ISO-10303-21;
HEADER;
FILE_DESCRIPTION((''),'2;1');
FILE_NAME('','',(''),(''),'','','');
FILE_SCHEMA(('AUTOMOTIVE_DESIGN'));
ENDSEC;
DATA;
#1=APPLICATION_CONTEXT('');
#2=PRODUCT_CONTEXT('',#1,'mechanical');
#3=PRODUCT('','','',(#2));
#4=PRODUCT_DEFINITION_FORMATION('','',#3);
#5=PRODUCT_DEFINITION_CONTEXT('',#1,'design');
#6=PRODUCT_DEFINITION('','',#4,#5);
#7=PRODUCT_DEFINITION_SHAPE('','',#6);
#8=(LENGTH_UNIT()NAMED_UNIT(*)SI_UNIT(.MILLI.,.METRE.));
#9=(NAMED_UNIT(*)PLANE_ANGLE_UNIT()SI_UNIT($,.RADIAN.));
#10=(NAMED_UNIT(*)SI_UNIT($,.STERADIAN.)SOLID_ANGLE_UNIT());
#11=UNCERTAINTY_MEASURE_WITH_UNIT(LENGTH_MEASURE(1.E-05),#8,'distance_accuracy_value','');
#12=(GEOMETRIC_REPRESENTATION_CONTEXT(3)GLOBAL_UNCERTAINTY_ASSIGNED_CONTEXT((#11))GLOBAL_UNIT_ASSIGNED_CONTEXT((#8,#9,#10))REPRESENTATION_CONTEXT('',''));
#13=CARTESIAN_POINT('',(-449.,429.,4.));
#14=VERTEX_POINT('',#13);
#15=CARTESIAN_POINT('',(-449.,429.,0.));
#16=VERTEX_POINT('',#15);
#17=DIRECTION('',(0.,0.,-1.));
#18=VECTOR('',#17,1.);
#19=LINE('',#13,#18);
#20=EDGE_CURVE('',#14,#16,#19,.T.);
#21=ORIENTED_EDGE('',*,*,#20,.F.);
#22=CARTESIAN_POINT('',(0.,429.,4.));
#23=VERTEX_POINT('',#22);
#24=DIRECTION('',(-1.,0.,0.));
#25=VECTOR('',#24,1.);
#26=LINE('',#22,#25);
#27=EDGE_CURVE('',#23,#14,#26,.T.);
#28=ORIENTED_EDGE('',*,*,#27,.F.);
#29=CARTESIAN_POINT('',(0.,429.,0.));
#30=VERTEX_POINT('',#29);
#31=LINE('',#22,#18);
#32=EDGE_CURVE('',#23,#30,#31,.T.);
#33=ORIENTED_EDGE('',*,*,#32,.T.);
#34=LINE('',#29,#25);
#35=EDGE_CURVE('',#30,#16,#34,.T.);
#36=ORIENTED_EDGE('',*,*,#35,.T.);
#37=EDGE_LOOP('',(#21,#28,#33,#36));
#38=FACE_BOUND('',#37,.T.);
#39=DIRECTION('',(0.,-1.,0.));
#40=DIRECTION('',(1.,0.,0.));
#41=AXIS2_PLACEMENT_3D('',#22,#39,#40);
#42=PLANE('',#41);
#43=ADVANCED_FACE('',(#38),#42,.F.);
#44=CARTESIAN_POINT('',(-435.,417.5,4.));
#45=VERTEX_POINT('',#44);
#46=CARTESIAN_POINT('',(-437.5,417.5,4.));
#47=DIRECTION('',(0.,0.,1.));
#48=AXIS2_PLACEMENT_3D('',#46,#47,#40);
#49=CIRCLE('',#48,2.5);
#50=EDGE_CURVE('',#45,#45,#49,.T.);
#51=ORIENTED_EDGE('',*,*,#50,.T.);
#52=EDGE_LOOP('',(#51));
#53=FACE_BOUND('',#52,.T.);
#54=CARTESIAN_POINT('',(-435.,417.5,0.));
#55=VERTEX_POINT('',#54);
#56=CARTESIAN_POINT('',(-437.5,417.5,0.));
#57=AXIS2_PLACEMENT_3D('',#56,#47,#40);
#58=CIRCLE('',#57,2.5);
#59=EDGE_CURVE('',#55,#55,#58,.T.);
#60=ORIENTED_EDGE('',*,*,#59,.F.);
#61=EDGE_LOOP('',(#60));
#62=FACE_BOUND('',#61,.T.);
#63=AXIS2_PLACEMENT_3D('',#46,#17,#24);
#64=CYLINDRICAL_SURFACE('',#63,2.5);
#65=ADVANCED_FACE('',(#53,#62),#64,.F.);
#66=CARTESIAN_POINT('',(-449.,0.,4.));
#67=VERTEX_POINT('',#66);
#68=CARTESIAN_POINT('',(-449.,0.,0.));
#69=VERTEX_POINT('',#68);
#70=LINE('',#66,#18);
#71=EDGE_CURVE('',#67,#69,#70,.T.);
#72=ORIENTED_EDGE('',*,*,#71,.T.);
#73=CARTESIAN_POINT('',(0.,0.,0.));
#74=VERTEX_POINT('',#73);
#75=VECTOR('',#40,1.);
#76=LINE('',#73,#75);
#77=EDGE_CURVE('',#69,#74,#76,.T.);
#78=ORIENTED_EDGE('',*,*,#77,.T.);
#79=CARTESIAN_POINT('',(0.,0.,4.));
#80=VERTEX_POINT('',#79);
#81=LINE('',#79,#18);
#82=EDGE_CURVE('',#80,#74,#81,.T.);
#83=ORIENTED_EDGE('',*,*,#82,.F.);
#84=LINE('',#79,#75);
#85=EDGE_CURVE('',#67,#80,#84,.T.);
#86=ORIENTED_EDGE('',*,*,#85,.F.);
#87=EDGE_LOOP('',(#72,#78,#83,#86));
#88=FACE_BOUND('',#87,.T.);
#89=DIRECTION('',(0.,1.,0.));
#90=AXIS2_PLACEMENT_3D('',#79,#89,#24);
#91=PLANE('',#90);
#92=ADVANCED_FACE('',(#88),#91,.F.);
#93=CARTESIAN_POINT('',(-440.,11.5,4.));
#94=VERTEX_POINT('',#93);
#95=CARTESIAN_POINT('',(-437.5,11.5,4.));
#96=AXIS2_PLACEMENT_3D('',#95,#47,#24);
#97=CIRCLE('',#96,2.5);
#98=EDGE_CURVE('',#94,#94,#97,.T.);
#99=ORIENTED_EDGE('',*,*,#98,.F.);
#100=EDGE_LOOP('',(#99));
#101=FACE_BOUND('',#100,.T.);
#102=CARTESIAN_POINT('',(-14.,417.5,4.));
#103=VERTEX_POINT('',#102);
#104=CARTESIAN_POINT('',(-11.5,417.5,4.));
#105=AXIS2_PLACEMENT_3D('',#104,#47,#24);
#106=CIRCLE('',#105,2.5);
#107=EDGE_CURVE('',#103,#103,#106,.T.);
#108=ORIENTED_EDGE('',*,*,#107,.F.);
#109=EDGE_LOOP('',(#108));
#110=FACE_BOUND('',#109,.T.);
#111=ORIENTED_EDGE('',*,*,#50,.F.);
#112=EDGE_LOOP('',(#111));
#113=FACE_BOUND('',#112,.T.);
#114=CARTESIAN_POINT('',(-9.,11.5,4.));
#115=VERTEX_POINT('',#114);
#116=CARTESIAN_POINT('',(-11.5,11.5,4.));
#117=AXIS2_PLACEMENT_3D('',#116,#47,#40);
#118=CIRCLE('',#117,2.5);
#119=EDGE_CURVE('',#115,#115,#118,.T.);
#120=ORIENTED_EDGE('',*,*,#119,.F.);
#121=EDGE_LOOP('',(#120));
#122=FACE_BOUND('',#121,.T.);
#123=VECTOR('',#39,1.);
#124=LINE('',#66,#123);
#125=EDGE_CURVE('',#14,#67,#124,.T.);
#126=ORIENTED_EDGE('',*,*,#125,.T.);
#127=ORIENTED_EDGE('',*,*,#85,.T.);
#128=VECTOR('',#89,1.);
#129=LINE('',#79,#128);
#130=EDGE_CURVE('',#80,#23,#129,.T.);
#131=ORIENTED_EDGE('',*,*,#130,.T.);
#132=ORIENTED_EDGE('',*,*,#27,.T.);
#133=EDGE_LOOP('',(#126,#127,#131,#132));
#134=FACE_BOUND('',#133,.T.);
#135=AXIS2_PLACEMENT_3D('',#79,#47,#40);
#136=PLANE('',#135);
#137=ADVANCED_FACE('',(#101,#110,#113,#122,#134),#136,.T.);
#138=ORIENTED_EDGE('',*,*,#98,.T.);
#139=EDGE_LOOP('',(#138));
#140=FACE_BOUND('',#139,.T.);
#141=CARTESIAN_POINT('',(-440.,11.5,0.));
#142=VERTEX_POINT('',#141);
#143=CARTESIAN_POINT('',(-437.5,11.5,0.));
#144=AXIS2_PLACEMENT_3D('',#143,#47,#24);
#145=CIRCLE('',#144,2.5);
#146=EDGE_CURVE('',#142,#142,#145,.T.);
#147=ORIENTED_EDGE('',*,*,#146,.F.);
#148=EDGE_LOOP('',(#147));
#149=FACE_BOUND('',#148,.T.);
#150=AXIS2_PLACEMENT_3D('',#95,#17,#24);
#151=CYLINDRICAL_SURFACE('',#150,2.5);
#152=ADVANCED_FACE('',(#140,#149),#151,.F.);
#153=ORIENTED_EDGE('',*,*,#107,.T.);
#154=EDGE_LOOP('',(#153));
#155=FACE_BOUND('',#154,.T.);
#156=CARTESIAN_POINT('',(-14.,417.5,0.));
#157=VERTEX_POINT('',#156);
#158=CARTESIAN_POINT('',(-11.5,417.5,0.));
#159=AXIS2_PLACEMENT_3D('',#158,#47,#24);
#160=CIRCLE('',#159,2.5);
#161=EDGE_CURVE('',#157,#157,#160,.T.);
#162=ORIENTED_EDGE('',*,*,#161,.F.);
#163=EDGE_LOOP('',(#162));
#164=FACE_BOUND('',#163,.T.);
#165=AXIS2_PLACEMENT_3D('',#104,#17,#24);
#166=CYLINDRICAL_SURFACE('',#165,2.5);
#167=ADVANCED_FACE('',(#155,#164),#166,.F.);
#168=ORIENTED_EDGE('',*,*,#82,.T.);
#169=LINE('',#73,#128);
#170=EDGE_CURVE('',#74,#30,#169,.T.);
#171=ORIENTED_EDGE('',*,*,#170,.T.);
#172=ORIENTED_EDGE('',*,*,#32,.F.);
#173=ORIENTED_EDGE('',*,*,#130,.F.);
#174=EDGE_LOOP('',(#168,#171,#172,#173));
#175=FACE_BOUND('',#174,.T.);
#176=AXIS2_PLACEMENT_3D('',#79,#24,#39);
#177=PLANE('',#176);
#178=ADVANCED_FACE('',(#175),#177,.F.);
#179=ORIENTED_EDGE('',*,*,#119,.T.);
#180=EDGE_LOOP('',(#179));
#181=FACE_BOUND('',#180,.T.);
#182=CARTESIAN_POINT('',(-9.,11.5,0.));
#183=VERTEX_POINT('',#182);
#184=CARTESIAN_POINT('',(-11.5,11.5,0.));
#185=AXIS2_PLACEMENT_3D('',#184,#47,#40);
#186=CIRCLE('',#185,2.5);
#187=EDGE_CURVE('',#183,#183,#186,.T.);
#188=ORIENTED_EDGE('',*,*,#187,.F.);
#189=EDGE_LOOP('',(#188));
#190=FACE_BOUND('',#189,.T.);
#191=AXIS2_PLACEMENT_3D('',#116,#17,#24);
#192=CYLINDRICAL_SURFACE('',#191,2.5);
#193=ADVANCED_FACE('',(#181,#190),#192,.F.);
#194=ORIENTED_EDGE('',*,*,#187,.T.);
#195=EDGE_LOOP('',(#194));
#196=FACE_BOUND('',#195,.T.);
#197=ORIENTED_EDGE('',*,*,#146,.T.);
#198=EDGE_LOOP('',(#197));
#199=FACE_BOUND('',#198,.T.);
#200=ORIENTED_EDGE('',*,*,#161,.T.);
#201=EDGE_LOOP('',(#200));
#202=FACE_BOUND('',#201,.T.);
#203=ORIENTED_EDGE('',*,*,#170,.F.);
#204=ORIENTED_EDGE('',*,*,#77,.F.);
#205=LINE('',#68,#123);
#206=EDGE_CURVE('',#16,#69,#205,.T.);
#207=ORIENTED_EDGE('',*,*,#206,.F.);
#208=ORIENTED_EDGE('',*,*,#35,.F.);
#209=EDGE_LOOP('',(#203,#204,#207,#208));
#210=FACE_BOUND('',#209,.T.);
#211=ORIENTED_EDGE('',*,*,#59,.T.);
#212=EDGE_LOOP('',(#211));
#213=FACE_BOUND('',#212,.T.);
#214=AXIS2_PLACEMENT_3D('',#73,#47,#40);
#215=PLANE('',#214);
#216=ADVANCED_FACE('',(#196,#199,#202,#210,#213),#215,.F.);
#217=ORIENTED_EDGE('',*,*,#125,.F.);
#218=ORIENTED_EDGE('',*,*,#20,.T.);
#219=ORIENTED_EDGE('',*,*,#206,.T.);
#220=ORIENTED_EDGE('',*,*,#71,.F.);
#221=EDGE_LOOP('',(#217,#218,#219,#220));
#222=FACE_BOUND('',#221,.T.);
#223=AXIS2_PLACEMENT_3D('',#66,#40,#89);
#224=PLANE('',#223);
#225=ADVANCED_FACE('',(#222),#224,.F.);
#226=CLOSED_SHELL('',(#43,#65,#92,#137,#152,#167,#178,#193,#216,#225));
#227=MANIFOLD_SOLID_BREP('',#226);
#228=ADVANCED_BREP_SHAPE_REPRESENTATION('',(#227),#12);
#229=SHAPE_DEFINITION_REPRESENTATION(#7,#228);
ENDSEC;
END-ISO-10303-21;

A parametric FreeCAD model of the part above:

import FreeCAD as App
import Part
import Sketcher
from FreeCAD import Vector


def add_polygon(sketch, points):
    """Adds a closed chain of lines whose ends are joined by coincident constraints."""
    first, n = sketch.GeometryCount, len(points)
    for a, b in zip(points, points[1:] + points[:1]):
        sketch.addGeometry(Part.LineSegment(App.Vector(*a, 0), App.Vector(*b, 0)), False)
    for i in range(n):
        sketch.addConstraint(Sketcher.Constraint("Coincident", first + i, 2, first + (i + 1) % n, 1))

doc = App.newDocument("Part")
body = doc.addObject("PartDesign::Body", "Body")

# Sketch on XY plane
sketch1 = body.newObject("Sketcher::SketchObject", "Sketch")
sketch1.AttachmentSupport = (doc.getObject("XY_Plane"), [""])
sketch1.MapMode = "FlatFace"
add_polygon(sketch1, [(-449, 429), (-449, 0), (0, 0), (0, 429)])  # lines 0-3
sketch1.addGeometry(Part.Circle(Vector(-437.5, 11.5, 0), Vector(0, 0, 1), 2.5), False)  # 4
sketch1.addGeometry(Part.Circle(Vector(-11.5, 11.5, 0), Vector(0, 0, 1), 2.5), False)  # 5
sketch1.addGeometry(Part.Circle(Vector(-437.5, 417.5, 0), Vector(0, 0, 1), 2.5), False)  # 6
sketch1.addGeometry(Part.Circle(Vector(-11.5, 417.5, 0), Vector(0, 0, 1), 2.5), False)  # 7
sketch1.addConstraint([
    Sketcher.Constraint("Vertical", 0),
    Sketcher.Constraint("Horizontal", 1),
    Sketcher.Constraint("Vertical", 2),
    Sketcher.Constraint("Horizontal", 3),
    Sketcher.Constraint("Coincident", 1, 2, -1, 1),
    Sketcher.Constraint("Equal", 4, 5),
    Sketcher.Constraint("Equal", 5, 6),
    Sketcher.Constraint("Equal", 6, 7),
    Sketcher.Constraint("Horizontal", 4, 3, 5, 3),
    Sketcher.Constraint("Horizontal", 6, 3, 7, 3),
    Sketcher.Constraint("Vertical", 4, 3, 6, 3),
    Sketcher.Constraint("Vertical", 5, 3, 7, 3),
    Sketcher.Constraint("Diameter", 4, 5.0),
    Sketcher.Constraint("DistanceX", 1, 1, 1, 2, 449.0),
    Sketcher.Constraint("DistanceY", 0, 2, 0, 1, 429.0),
    Sketcher.Constraint("DistanceX", 4, 3, 5, 3, 426.0),
    Sketcher.Constraint("DistanceY", 4, 3, 6, 3, 406.0),
    Sketcher.Constraint("DistanceX", 4, 3, -1, 1, 437.5),
    Sketcher.Constraint("DistanceY", -1, 1, 4, 3, 11.5),
])
pad1 = body.newObject("PartDesign::Pad", "Pad")
pad1.Profile = sketch1
pad1.Length = 4

doc.recompute()
